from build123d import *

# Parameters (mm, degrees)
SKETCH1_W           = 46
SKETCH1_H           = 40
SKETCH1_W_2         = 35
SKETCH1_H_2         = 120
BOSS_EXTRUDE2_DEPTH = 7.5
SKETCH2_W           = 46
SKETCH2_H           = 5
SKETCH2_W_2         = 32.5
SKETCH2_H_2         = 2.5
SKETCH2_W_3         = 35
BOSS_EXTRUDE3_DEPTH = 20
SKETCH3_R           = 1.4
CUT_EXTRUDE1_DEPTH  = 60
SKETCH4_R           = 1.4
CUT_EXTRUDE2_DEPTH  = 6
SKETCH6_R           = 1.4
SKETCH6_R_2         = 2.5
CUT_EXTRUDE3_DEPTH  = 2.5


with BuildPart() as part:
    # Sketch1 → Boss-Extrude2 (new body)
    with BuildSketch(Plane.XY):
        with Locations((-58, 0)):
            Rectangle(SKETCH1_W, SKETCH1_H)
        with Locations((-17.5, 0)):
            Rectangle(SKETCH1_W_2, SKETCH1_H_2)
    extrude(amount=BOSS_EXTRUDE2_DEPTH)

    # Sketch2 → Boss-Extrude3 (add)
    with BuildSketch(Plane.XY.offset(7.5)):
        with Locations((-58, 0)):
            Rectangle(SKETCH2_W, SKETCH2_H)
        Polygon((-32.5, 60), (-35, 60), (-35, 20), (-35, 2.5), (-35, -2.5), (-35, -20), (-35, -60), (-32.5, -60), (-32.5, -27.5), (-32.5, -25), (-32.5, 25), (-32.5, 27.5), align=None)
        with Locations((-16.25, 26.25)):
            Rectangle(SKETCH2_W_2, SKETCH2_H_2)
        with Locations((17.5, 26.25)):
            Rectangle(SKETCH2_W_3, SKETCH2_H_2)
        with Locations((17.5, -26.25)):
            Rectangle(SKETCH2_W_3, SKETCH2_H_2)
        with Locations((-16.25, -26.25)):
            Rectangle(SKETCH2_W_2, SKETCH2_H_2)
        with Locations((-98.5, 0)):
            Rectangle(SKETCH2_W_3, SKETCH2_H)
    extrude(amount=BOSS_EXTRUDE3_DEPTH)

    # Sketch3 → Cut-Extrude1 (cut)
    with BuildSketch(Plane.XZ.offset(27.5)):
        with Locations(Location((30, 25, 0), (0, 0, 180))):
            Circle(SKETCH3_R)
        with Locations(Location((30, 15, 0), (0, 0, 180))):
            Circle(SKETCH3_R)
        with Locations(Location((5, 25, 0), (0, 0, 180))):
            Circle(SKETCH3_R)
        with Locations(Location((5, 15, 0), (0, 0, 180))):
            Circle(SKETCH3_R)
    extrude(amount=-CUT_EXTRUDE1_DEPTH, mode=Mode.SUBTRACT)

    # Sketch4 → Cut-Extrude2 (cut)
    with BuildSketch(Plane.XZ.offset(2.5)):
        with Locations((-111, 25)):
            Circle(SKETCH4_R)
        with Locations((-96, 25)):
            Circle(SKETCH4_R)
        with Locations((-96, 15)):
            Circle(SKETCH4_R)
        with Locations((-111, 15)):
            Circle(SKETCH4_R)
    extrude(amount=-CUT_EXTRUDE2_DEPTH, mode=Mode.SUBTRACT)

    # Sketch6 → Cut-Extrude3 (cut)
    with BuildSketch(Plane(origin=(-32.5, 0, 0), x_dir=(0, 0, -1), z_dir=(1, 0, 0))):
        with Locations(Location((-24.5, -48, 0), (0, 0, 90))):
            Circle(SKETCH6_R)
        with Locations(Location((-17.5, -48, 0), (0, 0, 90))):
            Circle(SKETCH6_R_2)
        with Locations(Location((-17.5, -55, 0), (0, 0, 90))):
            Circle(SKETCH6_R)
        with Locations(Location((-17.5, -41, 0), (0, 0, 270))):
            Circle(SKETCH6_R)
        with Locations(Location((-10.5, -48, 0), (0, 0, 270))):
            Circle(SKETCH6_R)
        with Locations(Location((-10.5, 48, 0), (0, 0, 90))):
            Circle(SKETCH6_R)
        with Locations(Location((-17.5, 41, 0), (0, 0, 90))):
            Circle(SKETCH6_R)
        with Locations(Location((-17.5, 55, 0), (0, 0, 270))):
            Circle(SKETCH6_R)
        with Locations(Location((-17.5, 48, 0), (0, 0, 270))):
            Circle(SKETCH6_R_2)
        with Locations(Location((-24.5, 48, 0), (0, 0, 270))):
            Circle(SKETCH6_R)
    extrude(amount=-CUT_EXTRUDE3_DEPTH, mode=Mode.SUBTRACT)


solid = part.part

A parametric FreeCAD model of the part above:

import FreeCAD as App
import Part
import Sketcher
from FreeCAD import Vector
Q = App.Units.Quantity

doc = App.newDocument("Part")
params = doc.addObject("Spreadsheet::Sheet", "Params")
for row, (alias, value) in enumerate([
    ("sketch1_width", "46 mm"),
    ("sketch1_width2", "35 mm"),
    ("sketch1_height", "40 mm"),
    ("pad1_length", "7.5 mm"),
    ("sketch2_width", "81 mm"),
    ("sketch2_height", "50 mm"),
    ("sketch2_height2", "5 mm"),
    ("sketch2_width2", "2.5 mm"),
    ("sketch2_width3", "67.5 mm"),
    ("pad2_length", "20 mm"),
    ("sketch3_diameter", "2.8 mm"),
    ("pocket1_length", "60 mm"),
    ("sketch4_diameter", "2.8 mm"),
    ("pocket2_length", "6 mm"),
    ("sketch5_diameter", "5 mm"),
    ("sketch5_diameter2", "2.8 mm"),
    ("pocket3_length", "2.5 mm"),
], start=1):
    params.set(f"A{row}", alias)
    params.set(f"B{row}", "=" + value)
    params.setAlias(f"B{row}", alias)

body = doc.addObject("PartDesign::Body", "Body")

# Sketch on XY plane
sketch1 = body.newObject("Sketcher::SketchObject", "Sketch")
sketch1.AttachmentSupport = (doc.getObject("XY_Plane"), [""])
sketch1.MapMode = "FlatFace"
sketch1.addGeometry([
    Part.LineSegment(Vector(-81, 20, 0), Vector(-81, -20, 0)),  # 0
    Part.LineSegment(Vector(-81, -20, 0), Vector(-35, -20, 0)),  # 1
    Part.LineSegment(Vector(-35, -20, 0), Vector(-35, -60, 0)),  # 2
    Part.LineSegment(Vector(-35, -60, 0), Vector(0, -60, 0)),  # 3
    Part.LineSegment(Vector(0, -60, 0), Vector(0, 60, 0)),  # 4
    Part.LineSegment(Vector(0, 60, 0), Vector(-35, 60, 0)),  # 5
    Part.LineSegment(Vector(-35, 60, 0), Vector(-35, 20, 0)),  # 6
    Part.LineSegment(Vector(-35, 20, 0), Vector(-81, 20, 0)),  # 7
], False)
sketch1.addConstraint([
    Sketcher.Constraint("Coincident", 0, 2, 1, 1),
    Sketcher.Constraint("Coincident", 1, 2, 2, 1),
    Sketcher.Constraint("Coincident", 2, 2, 3, 1),
    Sketcher.Constraint("Coincident", 3, 2, 4, 1),
    Sketcher.Constraint("Coincident", 4, 2, 5, 1),
    Sketcher.Constraint("Coincident", 5, 2, 6, 1),
    Sketcher.Constraint("Coincident", 6, 2, 7, 1),
    Sketcher.Constraint("Coincident", 7, 2, 0, 1),
    Sketcher.Constraint("Vertical", 0),
    Sketcher.Constraint("Horizontal", 1),
    Sketcher.Constraint("Vertical", 2),
    Sketcher.Constraint("Horizontal", 3),
    Sketcher.Constraint("Vertical", 4),
    Sketcher.Constraint("Horizontal", 5),
    Sketcher.Constraint("Vertical", 6),
    Sketcher.Constraint("Horizontal", 7),
    Sketcher.Constraint("Symmetric", 3, 2, 4, 2, -1, 1),
    Sketcher.Constraint("Symmetric", 1, 2, 6, 2, -1),
    Sketcher.Constraint("Equal", 0, 2),
    Sketcher.Constraint("DistanceX", 1, 1, 1, 2, Q("46 mm")),
    Sketcher.Constraint("DistanceX", 3, 1, 3, 2, Q("35 mm")),
    Sketcher.Constraint("DistanceY", 0, 2, 0, 1, Q("40 mm")),
])
sketch1.setExpression("Constraints[19]", "Params.sketch1_width")
sketch1.setExpression("Constraints[20]", "Params.sketch1_width2")
sketch1.setExpression("Constraints[21]", "Params.sketch1_height")
pad1 = body.newObject("PartDesign::Pad", "Pad")
pad1.Profile = sketch1
pad1.setExpression("Length", "Params.pad1_length")

# Sketch on XY plane
sketch2 = body.newObject("Sketcher::SketchObject", "Sketch001")
sketch2.AttachmentSupport = (doc.getObject("XY_Plane"), [""])
sketch2.MapMode = "FlatFace"
sketch2.AttachmentOffset = App.Placement(Vector(0, 0, 7.5), App.Rotation())
sketch2.addGeometry([
    Part.LineSegment(Vector(-35, -2.5, 0), Vector(-35, -60, 0)),  # 0
    Part.LineSegment(Vector(-35, -60, 0), Vector(-32.5, -60, 0)),  # 1
    Part.LineSegment(Vector(-32.5, -60, 0), Vector(-32.5, -27.5, 0)),  # 2
    Part.LineSegment(Vector(-32.5, -27.5, 0), Vector(35, -27.5, 0)),  # 3
    Part.LineSegment(Vector(35, -27.5, 0), Vector(35, -25, 0)),  # 4
    Part.LineSegment(Vector(35, -25, 0), Vector(-32.5, -25, 0)),  # 5
    Part.LineSegment(Vector(-32.5, -25, 0), Vector(-32.5, 25, 0)),  # 6
    Part.LineSegment(Vector(-32.5, 25, 0), Vector(35, 25, 0)),  # 7
    Part.LineSegment(Vector(35, 25, 0), Vector(35, 27.5, 0)),  # 8
    Part.LineSegment(Vector(35, 27.5, 0), Vector(-32.5, 27.5, 0)),  # 9
    Part.LineSegment(Vector(-32.5, 27.5, 0), Vector(-32.5, 60, 0)),  # 10
    Part.LineSegment(Vector(-32.5, 60, 0), Vector(-35, 60, 0)),  # 11
    Part.LineSegment(Vector(-35, 60, 0), Vector(-35, 2.5, 0)),  # 12
    Part.LineSegment(Vector(-35, 2.5, 0), Vector(-116, 2.5, 0)),  # 13
    Part.LineSegment(Vector(-116, 2.5, 0), Vector(-116, -2.5, 0)),  # 14
    Part.LineSegment(Vector(-116, -2.5, 0), Vector(-35, -2.5, 0)),  # 15
], False)
sketch2.addConstraint([
    Sketcher.Constraint("Coincident", 0, 2, 1, 1),
    Sketcher.Constraint("Coincident", 1, 2, 2, 1),
    Sketcher.Constraint("Coincident", 2, 2, 3, 1),
    Sketcher.Constraint("Coincident", 3, 2, 4, 1),
    Sketcher.Constraint("Coincident", 4, 2, 5, 1),
    Sketcher.Constraint("Coincident", 5, 2, 6, 1),
    Sketcher.Constraint("Coincident", 6, 2, 7, 1),
    Sketcher.Constraint("Coincident", 7, 2, 8, 1),
    Sketcher.Constraint("Coincident", 8, 2, 9, 1),
    Sketcher.Constraint("Coincident", 9, 2, 10, 1),
    Sketcher.Constraint("Coincident", 10, 2, 11, 1),
    Sketcher.Constraint("Coincident", 11, 2, 12, 1),
    Sketcher.Constraint("Coincident", 12, 2, 13, 1),
    Sketcher.Constraint("Coincident", 13, 2, 14, 1),
    Sketcher.Constraint("Coincident", 14, 2, 15, 1),
    Sketcher.Constraint("Coincident", 15, 2, 0, 1),
    Sketcher.Constraint("Vertical", 0),
    Sketcher.Constraint("Horizontal", 1),
    Sketcher.Constraint("Vertical", 2),
    Sketcher.Constraint("Horizontal", 3),
    Sketcher.Constraint("Vertical", 4),
    Sketcher.Constraint("Horizontal", 5),
    Sketcher.Constraint("Vertical", 6),
    Sketcher.Constraint("Horizontal", 7),
    Sketcher.Constraint("Vertical", 8),
    Sketcher.Constraint("Horizontal", 9),
    Sketcher.Constraint("Vertical", 10),
    Sketcher.Constraint("Horizontal", 11),
    Sketcher.Constraint("Vertical", 12),
    Sketcher.Constraint("Horizontal", 13),
    Sketcher.Constraint("Vertical", 14),
    Sketcher.Constraint("Horizontal", 15),
    Sketcher.Constraint("Symmetric", 4, 2, 7, 2, -1),
    Sketcher.Constraint("Symmetric", 2, 2, 9, 2, -1),
    Sketcher.Constraint("Symmetric", 0, 2, 11, 2, -1),
    Sketcher.Constraint("Vertical", 2, 2, 5, 2),
    Sketcher.Constraint("Equal", 11, 4),
    Sketcher.Constraint("Equal", 0, 12),
    Sketcher.Constraint("DistanceX", 13, 2, 13, 1, Q("81 mm")),
    Sketcher.Constraint("DistanceY", 6, 1, 6, 2, Q("50 mm")),
    Sketcher.Constraint("DistanceY", 14, 2, 14, 1, Q("5 mm")),
    Sketcher.Constraint("DistanceX", 1, 1, 1, 2, Q("2.5 mm")),
    Sketcher.Constraint("DistanceX", 3, 1, 3, 2, Q("67.5 mm")),
    Sketcher.Constraint("DistanceY", 0, 2, 0, 1, Q("57.5 mm")),
    Sketcher.Constraint("DistanceX", 0, 2, -1, 1, Q("35 mm")),
])
sketch2.setExpression("Constraints[38]", "Params.sketch2_width")
sketch2.setExpression("Constraints[39]", "Params.sketch2_height")
sketch2.setExpression("Constraints[40]", "Params.sketch2_height2")
sketch2.setExpression("Constraints[41]", "Params.sketch2_width2")
sketch2.setExpression("Constraints[42]", "Params.sketch2_width3")
pad2 = body.newObject("PartDesign::Pad", "Pad001")
pad2.Profile = sketch2
pad2.setExpression("Length", "Params.pad2_length")

# Sketch on XZ plane
sketch3 = body.newObject("Sketcher::SketchObject", "Sketch002")
sketch3.AttachmentSupport = (doc.getObject("XZ_Plane"), [""])
sketch3.MapMode = "FlatFace"
sketch3.AttachmentOffset = App.Placement(Vector(0, 0, 27.5), App.Rotation())
sketch3.addGeometry([
    Part.Circle(Vector(30, 25, 0), Vector(0, 0, 1), 1.4),
    Part.Circle(Vector(30, 15, 0), Vector(0, 0, 1), 1.4),
    Part.Circle(Vector(5, 25, 0), Vector(0, 0, 1), 1.4),
    Part.Circle(Vector(5, 15, 0), Vector(0, 0, 1), 1.4),
], False)
sketch3.addConstraint([
    Sketcher.Constraint("Equal", 0, 1),
    Sketcher.Constraint("Equal", 1, 2),
    Sketcher.Constraint("Equal", 2, 3),
    Sketcher.Constraint("Horizontal", 0, 3, 2, 3),
    Sketcher.Constraint("Horizontal", 1, 3, 3, 3),
    Sketcher.Constraint("Vertical", 0, 3, 1, 3),
    Sketcher.Constraint("Vertical", 2, 3, 3, 3),
    Sketcher.Constraint("Diameter", 0, Q("2.8 mm")),
    Sketcher.Constraint("DistanceX", -1, 1, 0, 3, Q("30 mm")),
    Sketcher.Constraint("DistanceY", -1, 1, 0, 3, Q("25 mm")),
    Sketcher.Constraint("DistanceY", -1, 1, 1, 3, Q("15 mm")),
    Sketcher.Constraint("DistanceX", -1, 1, 2, 3, Q("5 mm")),
])
sketch3.setExpression("Constraints[7]", "Params.sketch3_diameter")
pocket1 = body.newObject("PartDesign::Pocket", "Pocket")
pocket1.Profile = sketch3
pocket1.setExpression("Length", "Params.pocket1_length")

# Sketch on XZ plane
sketch4 = body.newObject("Sketcher::SketchObject", "Sketch003")
sketch4.AttachmentSupport = (doc.getObject("XZ_Plane"), [""])
sketch4.MapMode = "FlatFace"
sketch4.AttachmentOffset = App.Placement(Vector(0, 0, 2.5), App.Rotation())
sketch4.addGeometry([
    Part.Circle(Vector(-111, 25, 0), Vector(0, 0, 1), 1.4),
    Part.Circle(Vector(-96, 25, 0), Vector(0, 0, 1), 1.4),
    Part.Circle(Vector(-96, 15, 0), Vector(0, 0, 1), 1.4),
    Part.Circle(Vector(-111, 15, 0), Vector(0, 0, 1), 1.4),
], False)
sketch4.addConstraint([
    Sketcher.Constraint("Equal", 0, 1),
    Sketcher.Constraint("Equal", 1, 2),
    Sketcher.Constraint("Equal", 2, 3),
    Sketcher.Constraint("Horizontal", 0, 3, 1, 3),
    Sketcher.Constraint("Horizontal", 2, 3, 3, 3),
    Sketcher.Constraint("Vertical", 1, 3, 2, 3),
    Sketcher.Constraint("Vertical", 0, 3, 3, 3),
    Sketcher.Constraint("Diameter", 0, Q("2.8 mm")),
    Sketcher.Constraint("DistanceX", 0, 3, -1, 1, Q("111 mm")),
    Sketcher.Constraint("DistanceY", -1, 1, 0, 3, Q("25 mm")),
    Sketcher.Constraint("DistanceX", 1, 3, -1, 1, Q("96 mm")),
    Sketcher.Constraint("DistanceY", -1, 1, 2, 3, Q("15 mm")),
])
sketch4.setExpression("Constraints[7]", "Params.sketch4_diameter")
pocket2 = body.newObject("PartDesign::Pocket", "Pocket001")
pocket2.Profile = sketch4
pocket2.setExpression("Length", "Params.pocket2_length")

# Sketch on YZ plane
sketch5 = body.newObject("Sketcher::SketchObject", "Sketch004")
sketch5.AttachmentSupport = (doc.getObject("YZ_Plane"), [""])
sketch5.MapMode = "FlatFace"
sketch5.AttachmentOffset = App.Placement(Vector(0, 0, -32.5), App.Rotation())
sketch5.addGeometry([
    Part.Circle(Vector(-48, 24.5, 0), Vector(0, 0, 1), 1.4),  # 0
    Part.Circle(Vector(-48, 17.5, 0), Vector(0, 0, 1), 2.5),  # 1
    Part.Circle(Vector(-55, 17.5, 0), Vector(0, 0, 1), 1.4),  # 2
    Part.Circle(Vector(-41, 17.5, 0), Vector(0, 0, 1), 1.4),  # 3
    Part.Circle(Vector(-48, 10.5, 0), Vector(0, 0, 1), 1.4),  # 4
    Part.Circle(Vector(48, 10.5, 0), Vector(0, 0, 1), 1.4),  # 5
    Part.Circle(Vector(41, 17.5, 0), Vector(0, 0, 1), 1.4),  # 6
    Part.Circle(Vector(55, 17.5, 0), Vector(0, 0, 1), 1.4),  # 7
    Part.Circle(Vector(48, 17.5, 0), Vector(0, 0, 1), 2.5),  # 8
    Part.Circle(Vector(48, 24.5, 0), Vector(0, 0, 1), 1.4),  # 9
], False)
sketch5.addConstraint([
    Sketcher.Constraint("Equal", 0, 2),
    Sketcher.Constraint("Equal", 2, 3),
    Sketcher.Constraint("Equal", 3, 4),
    Sketcher.Constraint("Equal", 4, 5),
    Sketcher.Constraint("Equal", 5, 6),
    Sketcher.Constraint("Equal", 6, 7),
    Sketcher.Constraint("Equal", 1, 8),
    Sketcher.Constraint("Equal", 7, 9),
    Sketcher.Constraint("Symmetric", 4, 3, 5, 3, -2),
    Sketcher.Constraint("Symmetric", 3, 3, 6, 3, -2),
    Sketcher.Constraint("Symmetric", 2, 3, 7, 3, -2),
    Sketcher.Constraint("Symmetric", 1, 3, 8, 3, -2),
    Sketcher.Constraint("Symmetric", 0, 3, 9, 3, -2),
    Sketcher.Constraint("Horizontal", 1, 3, 2, 3),
    Sketcher.Constraint("Horizontal", 2, 3, 3, 3),
    Sketcher.Constraint("Vertical", 0, 3, 1, 3),
    Sketcher.Constraint("Vertical", 1, 3, 4, 3),
    Sketcher.Constraint("Diameter", 1, Q("5 mm")),
    Sketcher.Constraint("Diameter", 0, Q("2.8 mm")),
    Sketcher.Constraint("DistanceX", 0, 3, -1, 1, Q("48 mm")),
    Sketcher.Constraint("DistanceX", 2, 3, -1, 1, Q("55 mm")),
    Sketcher.Constraint("DistanceX", 3, 3, -1, 1, Q("41 mm")),
    Sketcher.Constraint("DistanceY", 1, 3, 0, 3, Q("7 mm")),
    Sketcher.Constraint("DistanceY", 4, 3, 1, 3, Q("7 mm")),
    Sketcher.Constraint("DistanceY", -1, 1, 0, 3, Q("24.5 mm")),
])
sketch5.setExpression("Constraints[17]", "Params.sketch5_diameter")
sketch5.setExpression("Constraints[18]", "Params.sketch5_diameter2")
pocket3 = body.newObject("PartDesign::Pocket", "Pocket002")
pocket3.Profile = sketch5
pocket3.setExpression("Length", "Params.pocket3_length")

doc.recompute()
